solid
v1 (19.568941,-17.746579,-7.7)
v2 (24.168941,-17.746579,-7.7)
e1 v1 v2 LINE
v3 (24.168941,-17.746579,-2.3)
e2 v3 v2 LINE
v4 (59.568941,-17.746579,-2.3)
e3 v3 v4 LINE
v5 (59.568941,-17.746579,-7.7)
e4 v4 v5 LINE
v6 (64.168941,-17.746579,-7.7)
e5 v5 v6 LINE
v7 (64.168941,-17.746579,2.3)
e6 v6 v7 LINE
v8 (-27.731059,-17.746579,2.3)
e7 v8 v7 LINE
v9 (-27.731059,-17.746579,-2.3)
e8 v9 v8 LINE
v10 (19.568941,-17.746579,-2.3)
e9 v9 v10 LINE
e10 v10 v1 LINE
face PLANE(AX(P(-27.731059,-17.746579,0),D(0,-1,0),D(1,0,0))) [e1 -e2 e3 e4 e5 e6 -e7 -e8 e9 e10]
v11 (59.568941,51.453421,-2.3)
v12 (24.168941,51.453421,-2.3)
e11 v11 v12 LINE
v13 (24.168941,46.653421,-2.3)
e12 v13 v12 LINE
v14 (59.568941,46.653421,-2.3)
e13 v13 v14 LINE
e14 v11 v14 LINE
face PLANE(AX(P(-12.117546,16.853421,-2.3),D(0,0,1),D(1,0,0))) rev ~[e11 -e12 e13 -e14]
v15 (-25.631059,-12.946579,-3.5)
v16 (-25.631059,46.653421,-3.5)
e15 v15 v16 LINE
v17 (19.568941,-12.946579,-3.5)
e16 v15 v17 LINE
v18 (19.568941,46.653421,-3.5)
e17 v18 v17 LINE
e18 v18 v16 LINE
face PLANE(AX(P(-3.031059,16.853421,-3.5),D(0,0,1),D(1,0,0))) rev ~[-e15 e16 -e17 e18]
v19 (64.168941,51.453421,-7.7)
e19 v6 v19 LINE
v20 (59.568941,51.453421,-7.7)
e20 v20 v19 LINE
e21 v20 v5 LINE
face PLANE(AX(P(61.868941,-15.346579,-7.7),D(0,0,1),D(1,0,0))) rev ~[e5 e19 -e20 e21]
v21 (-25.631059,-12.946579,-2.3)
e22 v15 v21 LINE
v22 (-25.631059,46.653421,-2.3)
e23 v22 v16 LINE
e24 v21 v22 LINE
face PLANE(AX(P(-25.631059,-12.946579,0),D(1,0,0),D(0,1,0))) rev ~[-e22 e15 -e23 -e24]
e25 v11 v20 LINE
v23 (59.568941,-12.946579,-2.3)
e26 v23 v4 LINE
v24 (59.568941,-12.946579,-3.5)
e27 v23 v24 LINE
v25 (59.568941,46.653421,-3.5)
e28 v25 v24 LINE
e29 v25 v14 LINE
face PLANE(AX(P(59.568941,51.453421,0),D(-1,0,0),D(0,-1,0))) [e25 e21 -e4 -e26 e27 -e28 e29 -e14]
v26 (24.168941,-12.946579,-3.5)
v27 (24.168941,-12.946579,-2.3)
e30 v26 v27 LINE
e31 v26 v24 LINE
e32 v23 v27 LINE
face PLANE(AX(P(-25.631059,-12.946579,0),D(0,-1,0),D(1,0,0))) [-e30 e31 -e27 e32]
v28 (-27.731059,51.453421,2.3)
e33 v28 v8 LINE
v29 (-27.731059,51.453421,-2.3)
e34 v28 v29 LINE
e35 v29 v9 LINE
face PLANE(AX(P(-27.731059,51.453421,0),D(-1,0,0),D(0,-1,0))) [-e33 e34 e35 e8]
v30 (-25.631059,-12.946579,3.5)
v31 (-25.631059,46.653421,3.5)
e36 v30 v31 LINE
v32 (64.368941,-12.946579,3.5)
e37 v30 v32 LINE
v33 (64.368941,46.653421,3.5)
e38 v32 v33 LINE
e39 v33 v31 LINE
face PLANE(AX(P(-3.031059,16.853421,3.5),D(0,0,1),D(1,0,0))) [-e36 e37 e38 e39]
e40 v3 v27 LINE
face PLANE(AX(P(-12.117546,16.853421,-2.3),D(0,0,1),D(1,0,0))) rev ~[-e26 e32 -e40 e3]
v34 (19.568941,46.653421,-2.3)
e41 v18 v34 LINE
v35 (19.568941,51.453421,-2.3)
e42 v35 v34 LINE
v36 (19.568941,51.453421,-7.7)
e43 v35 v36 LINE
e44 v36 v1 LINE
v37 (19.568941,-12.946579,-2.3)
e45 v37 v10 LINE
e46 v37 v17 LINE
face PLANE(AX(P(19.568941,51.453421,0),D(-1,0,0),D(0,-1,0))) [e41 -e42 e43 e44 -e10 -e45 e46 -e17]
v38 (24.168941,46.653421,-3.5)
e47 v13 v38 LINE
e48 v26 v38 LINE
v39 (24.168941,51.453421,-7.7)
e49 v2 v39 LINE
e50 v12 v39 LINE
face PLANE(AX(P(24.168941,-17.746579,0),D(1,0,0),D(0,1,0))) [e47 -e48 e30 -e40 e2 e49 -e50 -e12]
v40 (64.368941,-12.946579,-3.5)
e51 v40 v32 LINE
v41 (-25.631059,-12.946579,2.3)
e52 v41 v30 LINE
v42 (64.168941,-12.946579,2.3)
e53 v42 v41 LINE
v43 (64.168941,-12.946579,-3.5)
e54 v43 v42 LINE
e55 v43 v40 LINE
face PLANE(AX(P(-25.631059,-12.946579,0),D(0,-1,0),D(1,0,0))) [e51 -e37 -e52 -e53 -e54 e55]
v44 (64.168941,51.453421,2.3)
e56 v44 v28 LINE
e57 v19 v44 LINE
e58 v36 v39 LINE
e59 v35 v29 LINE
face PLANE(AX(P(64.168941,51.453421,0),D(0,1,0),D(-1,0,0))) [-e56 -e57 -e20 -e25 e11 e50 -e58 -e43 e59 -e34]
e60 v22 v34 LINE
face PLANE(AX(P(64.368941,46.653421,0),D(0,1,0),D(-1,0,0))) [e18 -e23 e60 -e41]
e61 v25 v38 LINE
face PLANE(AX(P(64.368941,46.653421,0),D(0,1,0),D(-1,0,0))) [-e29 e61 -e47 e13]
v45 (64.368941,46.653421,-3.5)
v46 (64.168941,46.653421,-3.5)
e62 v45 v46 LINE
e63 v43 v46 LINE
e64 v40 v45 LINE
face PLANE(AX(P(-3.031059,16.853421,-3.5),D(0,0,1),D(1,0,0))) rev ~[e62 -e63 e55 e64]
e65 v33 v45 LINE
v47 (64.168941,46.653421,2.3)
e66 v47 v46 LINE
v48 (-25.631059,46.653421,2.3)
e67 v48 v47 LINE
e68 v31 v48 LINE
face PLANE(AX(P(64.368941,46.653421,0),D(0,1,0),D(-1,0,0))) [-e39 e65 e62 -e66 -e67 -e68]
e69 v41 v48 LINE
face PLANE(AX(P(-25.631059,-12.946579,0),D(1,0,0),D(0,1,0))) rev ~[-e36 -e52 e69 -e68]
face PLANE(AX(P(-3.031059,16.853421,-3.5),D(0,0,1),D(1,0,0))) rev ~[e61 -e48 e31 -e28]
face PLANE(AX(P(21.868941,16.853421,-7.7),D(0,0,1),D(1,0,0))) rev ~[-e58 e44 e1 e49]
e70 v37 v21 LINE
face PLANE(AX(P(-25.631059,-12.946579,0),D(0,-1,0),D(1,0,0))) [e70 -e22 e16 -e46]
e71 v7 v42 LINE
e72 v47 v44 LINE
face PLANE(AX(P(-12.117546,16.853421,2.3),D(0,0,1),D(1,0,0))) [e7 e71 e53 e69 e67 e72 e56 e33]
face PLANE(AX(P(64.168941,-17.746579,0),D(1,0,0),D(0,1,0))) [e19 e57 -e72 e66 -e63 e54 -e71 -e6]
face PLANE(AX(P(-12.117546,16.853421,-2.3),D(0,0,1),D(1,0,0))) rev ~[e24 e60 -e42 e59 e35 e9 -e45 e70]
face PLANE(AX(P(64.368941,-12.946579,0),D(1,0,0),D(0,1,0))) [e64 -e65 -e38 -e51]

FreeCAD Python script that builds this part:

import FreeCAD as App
import Part
import Sketcher
Q = App.Units.Quantity

doc = App.newDocument("Part")
params = doc.addObject("Spreadsheet::Sheet", "Params")
for row, (alias, value) in enumerate([
    ("sketch1_width", "91.9 mm"),
    ("sketch1_width2", "89.8 mm"),
    ("sketch1_height", "69.2 mm"),
    ("sketch1_height2", "4.8 mm"),
    ("pad1_length", "4.6 mm"),
    ("sketch2_width", "90 mm"),
    ("sketch2_height", "59.6 mm"),
    ("pad2_length", "7 mm"),
    ("sketch3_width", "4.6 mm"),
    ("sketch3_height", "69.2 mm"),
    ("pad3_length", "7.7 mm"),
], start=1):
    params.set(f"A{row}", alias)
    params.set(f"B{row}", "=" + value)
    params.setAlias(f"B{row}", alias)

body = doc.addObject("PartDesign::Body", "Body")

# Sketch on XY plane
sketch1 = doc.addObject("Sketcher::SketchObject", "Sketch")
body.addObject(sketch1)
sketch1.AttachmentSupport = (doc.XY_Plane, [""])
sketch1.MapMode = "FlatFace"
sketch1.addGeometry(Part.LineSegment(App.Vector(-27.7, 51.5, 0), App.Vector(-27.7, -17.7, 0)), False)
sketch1.addGeometry(Part.LineSegment(App.Vector(-27.7, -17.7, 0), App.Vector(64.2, -17.7, 0)), False)
sketch1.addGeometry(Part.LineSegment(App.Vector(64.2, -17.7, 0), App.Vector(64.2, -12.9, 0)), False)
sketch1.addGeometry(Part.LineSegment(App.Vector(64.2, -12.9, 0), App.Vector(-25.6, -12.9, 0)), False)
sketch1.addGeometry(Part.LineSegment(App.Vector(-25.6, -12.9, 0), App.Vector(-25.6, 46.7, 0)), False)
sketch1.addGeometry(Part.LineSegment(App.Vector(-25.6, 46.7, 0), App.Vector(64.2, 46.7, 0)), False)
sketch1.addGeometry(Part.LineSegment(App.Vector(64.2, 46.7, 0), App.Vector(64.2, 51.5, 0)), False)
sketch1.addGeometry(Part.LineSegment(App.Vector(64.2, 51.5, 0), App.Vector(-27.7, 51.5, 0)), False)
sketch1.addConstraint(Sketcher.Constraint("Coincident", 0, 2, 1, 1))
sketch1.addConstraint(Sketcher.Constraint("Coincident", 1, 2, 2, 1))
sketch1.addConstraint(Sketcher.Constraint("Coincident", 2, 2, 3, 1))
sketch1.addConstraint(Sketcher.Constraint("Coincident", 3, 2, 4, 1))
sketch1.addConstraint(Sketcher.Constraint("Coincident", 4, 2, 5, 1))
sketch1.addConstraint(Sketcher.Constraint("Coincident", 5, 2, 6, 1))
sketch1.addConstraint(Sketcher.Constraint("Coincident", 6, 2, 7, 1))
sketch1.addConstraint(Sketcher.Constraint("Coincident", 7, 2, 0, 1))
sketch1.addConstraint(Sketcher.Constraint("Vertical", 0))
sketch1.addConstraint(Sketcher.Constraint("Horizontal", 1))
sketch1.addConstraint(Sketcher.Constraint("Vertical", 2))
sketch1.addConstraint(Sketcher.Constraint("Horizontal", 3))
sketch1.addConstraint(Sketcher.Constraint("Vertical", 4))
sketch1.addConstraint(Sketcher.Constraint("Horizontal", 5))
sketch1.addConstraint(Sketcher.Constraint("Vertical", 6))
sketch1.addConstraint(Sketcher.Constraint("Horizontal", 7))
sketch1.addConstraint(Sketcher.Constraint("Vertical", 2, 2, 5, 2))
sketch1.addConstraint(Sketcher.Constraint("Equal", 2, 6))
sketch1.addConstraint(Sketcher.Constraint("DistanceX", 1, 1, 1, 2, Q("91.9 mm")))
sketch1.addConstraint(Sketcher.Constraint("DistanceX", 3, 2, 3, 1, Q("89.8 mm")))
sketch1.addConstraint(Sketcher.Constraint("DistanceY", 0, 2, 0, 1, Q("69.2 mm")))
sketch1.addConstraint(Sketcher.Constraint("DistanceY", 2, 1, 2, 2, Q("4.8 mm")))
sketch1.addConstraint(Sketcher.Constraint("DistanceX", 0, 2, -1, 1, Q("27.731059 mm")))
sketch1.addConstraint(Sketcher.Constraint("DistanceY", 0, 2, -1, 1, Q("17.746579 mm")))
sketch1.setExpression("Constraints[18]", "Params.sketch1_width")
sketch1.setExpression("Constraints[19]", "Params.sketch1_width2")
sketch1.setExpression("Constraints[20]", "Params.sketch1_height")
sketch1.setExpression("Constraints[21]", "Params.sketch1_height2")
pad1 = doc.addObject("PartDesign::Pad", "Pad")
body.addObject(pad1)
pad1.Profile = sketch1
pad1.setExpression("Length", "Params.pad1_length")
pad1.Midplane = True

# Sketch on XY plane
sketch2 = doc.addObject("Sketcher::SketchObject", "Sketch001")
body.addObject(sketch2)
sketch2.AttachmentSupport = (doc.XY_Plane, [""])
sketch2.MapMode = "FlatFace"
sketch2.addGeometry(Part.LineSegment(App.Vector(-26, 47, 0), App.Vector(-26, -13, 0)), False)
sketch2.addGeometry(Part.LineSegment(App.Vector(-26, -13, 0), App.Vector(64, -13, 0)), False)
sketch2.addGeometry(Part.LineSegment(App.Vector(64, -13, 0), App.Vector(64, 47, 0)), False)
sketch2.addGeometry(Part.LineSegment(App.Vector(64, 47, 0), App.Vector(-26, 47, 0)), False)
sketch2.addConstraint(Sketcher.Constraint("Coincident", 0, 2, 1, 1))
sketch2.addConstraint(Sketcher.Constraint("Coincident", 1, 2, 2, 1))
sketch2.addConstraint(Sketcher.Constraint("Coincident", 2, 2, 3, 1))
sketch2.addConstraint(Sketcher.Constraint("Coincident", 3, 2, 0, 1))
sketch2.addConstraint(Sketcher.Constraint("Vertical", 0))
sketch2.addConstraint(Sketcher.Constraint("Horizontal", 1))
sketch2.addConstraint(Sketcher.Constraint("Vertical", 2))
sketch2.addConstraint(Sketcher.Constraint("Horizontal", 3))
sketch2.addConstraint(Sketcher.Constraint("DistanceX", 1, 1, 1, 2, Q("90 mm")))
sketch2.addConstraint(Sketcher.Constraint("DistanceY", 0, 2, 0, 1, Q("59.6 mm")))
sketch2.addConstraint(Sketcher.Constraint("DistanceX", 0, 2, -1, 1, Q("25.631059 mm")))
sketch2.addConstraint(Sketcher.Constraint("DistanceY", 0, 2, -1, 1, Q("12.946579 mm")))
sketch2.setExpression("Constraints[8]", "Params.sketch2_width")
sketch2.setExpression("Constraints[9]", "Params.sketch2_height")
pad2 = doc.addObject("PartDesign::Pad", "Pad001")
body.addObject(pad2)
pad2.Profile = sketch2
pad2.setExpression("Length", "Params.pad2_length")
pad2.Midplane = True

# Sketch on XY plane
sketch3 = doc.addObject("Sketcher::SketchObject", "Sketch002")
body.addObject(sketch3)
sketch3.AttachmentSupport = (doc.XY_Plane, [""])
sketch3.MapMode = "FlatFace"
sketch3.addGeometry(Part.LineSegment(App.Vector(24.2, 51.5, 0), App.Vector(19.6, 51.5, 0)), False)
sketch3.addGeometry(Part.LineSegment(App.Vector(19.6, 51.5, 0), App.Vector(19.6, -17.7, 0)), False)
sketch3.addGeometry(Part.LineSegment(App.Vector(19.6, -17.7, 0), App.Vector(24.2, -17.7, 0)), False)
sketch3.addGeometry(Part.LineSegment(App.Vector(24.2, -17.7, 0), App.Vector(24.2, 51.5, 0)), False)
sketch3.addGeometry(Part.LineSegment(App.Vector(59.6, -17.7, 0), App.Vector(64.2, -17.7, 0)), False)
sketch3.addGeometry(Part.LineSegment(App.Vector(64.2, -17.7, 0), App.Vector(64.2, 51.5, 0)), False)
sketch3.addGeometry(Part.LineSegment(App.Vector(64.2, 51.5, 0), App.Vector(59.6, 51.5, 0)), False)
sketch3.addGeometry(Part.LineSegment(App.Vector(59.6, 51.5, 0), App.Vector(59.6, -17.7, 0)), False)
sketch3.addConstraint(Sketcher.Constraint("Coincident", 0, 2, 1, 1))
sketch3.addConstraint(Sketcher.Constraint("Coincident", 1, 2, 2, 1))
sketch3.addConstraint(Sketcher.Constraint("Coincident", 2, 2, 3, 1))
sketch3.addConstraint(Sketcher.Constraint("Coincident", 3, 2, 0, 1))
sketch3.addConstraint(Sketcher.Constraint("Coincident", 4, 2, 5, 1))
sketch3.addConstraint(Sketcher.Constraint("Coincident", 5, 2, 6, 1))
sketch3.addConstraint(Sketcher.Constraint("Coincident", 6, 2, 7, 1))
sketch3.addConstraint(Sketcher.Constraint("Coincident", 7, 2, 4, 1))
sketch3.addConstraint(Sketcher.Constraint("Horizontal", 0))
sketch3.addConstraint(Sketcher.Constraint("Vertical", 1))
sketch3.addConstraint(Sketcher.Constraint("Horizontal", 2))
sketch3.addConstraint(Sketcher.Constraint("Vertical", 3))
sketch3.addConstraint(Sketcher.Constraint("Horizontal", 4))
sketch3.addConstraint(Sketcher.Constraint("Vertical", 5))
sketch3.addConstraint(Sketcher.Constraint("Horizontal", 6))
sketch3.addConstraint(Sketcher.Constraint("Vertical", 7))
sketch3.addConstraint(Sketcher.Constraint("Horizontal", 2, 2, 4, 2))
sketch3.addConstraint(Sketcher.Constraint("Horizontal", 3, 2, 5, 2))
sketch3.addConstraint(Sketcher.Constraint("Equal", 2, 4))
sketch3.addConstraint(Sketcher.Constraint("DistanceX", 0, 2, 0, 1, Q("4.6 mm")))
sketch3.addConstraint(Sketcher.Constraint("DistanceY", 1, 2, 1, 1, Q("69.2 mm")))
sketch3.addConstraint(Sketcher.Constraint("DistanceX", 2, 2, 4, 2, Q("40 mm")))
sketch3.addConstraint(Sketcher.Constraint("DistanceX", -1, 1, 0, 2, Q("19.568941 mm")))
sketch3.addConstraint(Sketcher.Constraint("DistanceY", -1, 1, 0, 2, Q("51.453421 mm")))
sketch3.setExpression("Constraints[19]", "Params.sketch3_width")
sketch3.setExpression("Constraints[20]", "Params.sketch3_height")
pad3 = doc.addObject("PartDesign::Pad", "Pad002")
body.addObject(pad3)
pad3.Profile = sketch3
pad3.setExpression("Length", "Params.pad3_length")
pad3.Reversed = True

doc.recompute()
